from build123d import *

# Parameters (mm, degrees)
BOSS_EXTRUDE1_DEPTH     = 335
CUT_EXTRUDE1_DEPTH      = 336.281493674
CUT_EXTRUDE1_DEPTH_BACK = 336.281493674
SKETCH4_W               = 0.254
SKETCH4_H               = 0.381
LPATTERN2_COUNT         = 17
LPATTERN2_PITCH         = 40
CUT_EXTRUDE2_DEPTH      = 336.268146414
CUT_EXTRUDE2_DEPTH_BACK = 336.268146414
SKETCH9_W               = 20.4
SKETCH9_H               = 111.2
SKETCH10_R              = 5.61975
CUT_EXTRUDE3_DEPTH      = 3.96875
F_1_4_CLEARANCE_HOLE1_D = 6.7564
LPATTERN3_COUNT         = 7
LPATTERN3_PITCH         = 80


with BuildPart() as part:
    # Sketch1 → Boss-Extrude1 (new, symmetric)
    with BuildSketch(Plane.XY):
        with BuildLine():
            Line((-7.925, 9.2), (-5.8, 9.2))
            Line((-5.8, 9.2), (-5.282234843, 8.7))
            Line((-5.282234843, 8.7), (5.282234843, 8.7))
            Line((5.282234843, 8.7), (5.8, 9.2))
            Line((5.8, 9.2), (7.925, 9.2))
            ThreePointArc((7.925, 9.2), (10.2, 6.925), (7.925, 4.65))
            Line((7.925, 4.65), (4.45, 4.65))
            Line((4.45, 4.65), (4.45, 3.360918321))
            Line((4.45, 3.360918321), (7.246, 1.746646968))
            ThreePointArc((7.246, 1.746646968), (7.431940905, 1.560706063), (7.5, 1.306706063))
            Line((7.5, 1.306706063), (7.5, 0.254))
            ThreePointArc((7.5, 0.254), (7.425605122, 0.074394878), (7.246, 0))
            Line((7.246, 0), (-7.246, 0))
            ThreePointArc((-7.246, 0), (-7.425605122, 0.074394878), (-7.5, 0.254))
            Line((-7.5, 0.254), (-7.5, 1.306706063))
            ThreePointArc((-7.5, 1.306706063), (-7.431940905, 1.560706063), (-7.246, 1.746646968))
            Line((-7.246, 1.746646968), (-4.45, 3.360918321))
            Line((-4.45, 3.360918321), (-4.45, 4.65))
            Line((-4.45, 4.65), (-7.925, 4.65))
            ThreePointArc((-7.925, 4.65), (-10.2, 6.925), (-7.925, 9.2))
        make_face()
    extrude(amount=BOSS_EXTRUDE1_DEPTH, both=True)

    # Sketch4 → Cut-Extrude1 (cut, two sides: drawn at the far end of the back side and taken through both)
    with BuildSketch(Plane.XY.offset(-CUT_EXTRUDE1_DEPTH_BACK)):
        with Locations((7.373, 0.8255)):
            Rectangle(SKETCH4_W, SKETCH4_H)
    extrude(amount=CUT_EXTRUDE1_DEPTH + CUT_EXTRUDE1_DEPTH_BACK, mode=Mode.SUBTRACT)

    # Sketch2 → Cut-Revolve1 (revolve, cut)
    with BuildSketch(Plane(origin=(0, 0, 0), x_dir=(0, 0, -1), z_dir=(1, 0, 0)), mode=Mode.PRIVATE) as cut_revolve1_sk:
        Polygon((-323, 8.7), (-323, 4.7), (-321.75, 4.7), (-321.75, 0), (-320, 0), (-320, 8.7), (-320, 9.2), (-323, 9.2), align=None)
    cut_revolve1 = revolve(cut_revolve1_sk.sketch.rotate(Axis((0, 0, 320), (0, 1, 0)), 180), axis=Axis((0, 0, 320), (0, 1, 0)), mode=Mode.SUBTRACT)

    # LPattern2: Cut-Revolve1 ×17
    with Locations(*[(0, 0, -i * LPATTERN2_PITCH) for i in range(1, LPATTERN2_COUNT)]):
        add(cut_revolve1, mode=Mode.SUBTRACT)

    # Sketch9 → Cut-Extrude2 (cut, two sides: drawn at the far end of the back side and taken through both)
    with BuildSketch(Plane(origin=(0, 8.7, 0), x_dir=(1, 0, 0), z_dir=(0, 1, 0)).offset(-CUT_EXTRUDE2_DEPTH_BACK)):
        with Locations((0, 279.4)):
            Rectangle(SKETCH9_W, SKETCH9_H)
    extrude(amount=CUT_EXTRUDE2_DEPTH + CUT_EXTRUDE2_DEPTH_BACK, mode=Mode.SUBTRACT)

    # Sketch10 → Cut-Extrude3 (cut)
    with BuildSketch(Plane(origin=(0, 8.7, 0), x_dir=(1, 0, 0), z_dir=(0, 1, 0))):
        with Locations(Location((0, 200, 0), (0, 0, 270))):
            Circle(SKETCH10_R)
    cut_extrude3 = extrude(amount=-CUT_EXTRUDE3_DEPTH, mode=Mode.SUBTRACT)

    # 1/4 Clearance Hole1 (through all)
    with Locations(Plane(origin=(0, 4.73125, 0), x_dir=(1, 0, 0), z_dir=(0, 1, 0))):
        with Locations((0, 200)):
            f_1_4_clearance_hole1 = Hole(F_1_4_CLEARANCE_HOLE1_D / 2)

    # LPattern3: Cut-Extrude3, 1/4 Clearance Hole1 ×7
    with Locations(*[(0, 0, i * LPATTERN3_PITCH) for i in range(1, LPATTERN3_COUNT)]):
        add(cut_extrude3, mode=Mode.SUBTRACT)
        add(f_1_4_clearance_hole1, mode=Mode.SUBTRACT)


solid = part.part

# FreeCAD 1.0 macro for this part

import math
import FreeCAD as App
import Part
import Sketcher
from FreeCAD import Vector
Q = App.Units.Quantity

doc = App.newDocument("Part")
body = doc.addObject("PartDesign::Body", "Body")

sketch1 = doc.addObject("Sketcher::SketchObject", "Sketch")
body.addObject(sketch1)
sketch1.AttachmentSupport = (doc.XY_Plane, [""])
sketch1.MapMode = "FlatFace"
sketch1.addGeometry(Part.LineSegment(Vector(-5.8, 9.2, 0), Vector(-7.92, 9.2, 0)), False)
sketch1.addGeometry(Part.ArcOfCircle(Part.Circle(Vector(-7.92, 6.92, 0), Vector(0, 0, 1), 2.27), math.radians(90), math.radians(270)), False)
sketch1.addGeometry(Part.LineSegment(Vector(-7.92, 4.65, 0), Vector(-4.45, 4.65, 0)), False)
sketch1.addGeometry(Part.LineSegment(Vector(-4.45, 4.65, 0), Vector(-4.45, 3.36, 0)), False)
sketch1.addGeometry(Part.LineSegment(Vector(-4.45, 3.36, 0), Vector(-7.25, 1.75, 0)), False)
sketch1.addGeometry(Part.ArcOfCircle(Part.Circle(Vector(-6.99, 1.31, 0), Vector(0, 0, 1), 0.51), math.radians(120), math.radians(180)), False)
sketch1.addGeometry(Part.LineSegment(Vector(-7.5, 1.31, 0), Vector(-7.5, 0.25, 0)), False)
sketch1.addGeometry(Part.ArcOfCircle(Part.Circle(Vector(-7.25, 0.25, 0), Vector(0, 0, 1), 0.25), math.radians(-180), math.radians(-90)), False)
sketch1.addGeometry(Part.LineSegment(Vector(-7.25, 0, 0), Vector(7.25, 0, 0)), False)
sketch1.addGeometry(Part.ArcOfCircle(Part.Circle(Vector(7.25, 0.25, 0), Vector(0, 0, 1), 0.25), math.radians(-90), math.radians(0)), False)
sketch1.addGeometry(Part.LineSegment(Vector(7.5, 0.25, 0), Vector(7.5, 1.31, 0)), False)
sketch1.addGeometry(Part.ArcOfCircle(Part.Circle(Vector(6.99, 1.31, 0), Vector(0, 0, 1), 0.51), math.radians(0), math.radians(60)), False)
sketch1.addGeometry(Part.LineSegment(Vector(7.25, 1.75, 0), Vector(4.45, 3.36, 0)), False)
sketch1.addGeometry(Part.LineSegment(Vector(4.45, 3.36, 0), Vector(4.45, 4.65, 0)), False)
sketch1.addGeometry(Part.LineSegment(Vector(4.45, 4.65, 0), Vector(7.92, 4.65, 0)), False)
sketch1.addGeometry(Part.ArcOfCircle(Part.Circle(Vector(7.92, 6.92, 0), Vector(0, 0, 1), 2.27), math.radians(-90), math.radians(90)), False)
sketch1.addGeometry(Part.LineSegment(Vector(7.92, 9.2, 0), Vector(5.8, 9.2, 0)), False)
sketch1.addGeometry(Part.LineSegment(Vector(5.8, 9.2, 0), Vector(5.28, 8.7, 0)), False)
sketch1.addGeometry(Part.LineSegment(Vector(5.28, 8.7, 0), Vector(-5.28, 8.7, 0)), False)
sketch1.addGeometry(Part.LineSegment(Vector(-5.28, 8.7, 0), Vector(-5.8, 9.2, 0)), False)
sketch1.addConstraint(Sketcher.Constraint("Tangent", 0, 2, 1, 1))
sketch1.addConstraint(Sketcher.Constraint("Tangent", 1, 2, 2, 1))
sketch1.addConstraint(Sketcher.Constraint("Coincident", 2, 2, 3, 1))
sketch1.addConstraint(Sketcher.Constraint("Coincident", 3, 2, 4, 1))
sketch1.addConstraint(Sketcher.Constraint("Tangent", 4, 2, 5, 1))
sketch1.addConstraint(Sketcher.Constraint("Tangent", 5, 2, 6, 1))
sketch1.addConstraint(Sketcher.Constraint("Tangent", 6, 2, 7, 1))
sketch1.addConstraint(Sketcher.Constraint("Tangent", 7, 2, 8, 1))
sketch1.addConstraint(Sketcher.Constraint("Tangent", 8, 2, 9, 1))
sketch1.addConstraint(Sketcher.Constraint("Tangent", 9, 2, 10, 1))
sketch1.addConstraint(Sketcher.Constraint("Tangent", 10, 2, 11, 1))
sketch1.addConstraint(Sketcher.Constraint("Tangent", 11, 2, 12, 1))
sketch1.addConstraint(Sketcher.Constraint("Coincident", 12, 2, 13, 1))
sketch1.addConstraint(Sketcher.Constraint("Coincident", 13, 2, 14, 1))
sketch1.addConstraint(Sketcher.Constraint("Tangent", 14, 2, 15, 1))
sketch1.addConstraint(Sketcher.Constraint("Tangent", 15, 2, 16, 1))
sketch1.addConstraint(Sketcher.Constraint("Coincident", 16, 2, 17, 1))
sketch1.addConstraint(Sketcher.Constraint("Coincident", 17, 2, 18, 1))
sketch1.addConstraint(Sketcher.Constraint("Coincident", 18, 2, 19, 1))
sketch1.addConstraint(Sketcher.Constraint("Coincident", 19, 2, 0, 1))
sketch1.addConstraint(Sketcher.Constraint("Horizontal", 0))
sketch1.addConstraint(Sketcher.Constraint("Horizontal", 2))
sketch1.addConstraint(Sketcher.Constraint("Vertical", 3))
sketch1.addConstraint(Sketcher.Constraint("Vertical", 6))
sketch1.addConstraint(Sketcher.Constraint("Horizontal", 8))
sketch1.addConstraint(Sketcher.Constraint("Vertical", 10))
sketch1.addConstraint(Sketcher.Constraint("Vertical", 13))
sketch1.addConstraint(Sketcher.Constraint("Horizontal", 14))
sketch1.addConstraint(Sketcher.Constraint("Horizontal", 16))
sketch1.addConstraint(Sketcher.Constraint("Horizontal", 18))
sketch1.addConstraint(Sketcher.Constraint("Equal", 7, 9))
sketch1.addConstraint(Sketcher.Constraint("Equal", 5, 11))
sketch1.addConstraint(Sketcher.Constraint("Equal", 1, 15))
sketch1.addConstraint(Sketcher.Constraint("Symmetric", 7, 2, 8, 2, -1, 1))
sketch1.addConstraint(Sketcher.Constraint("Symmetric", 1, 3, 15, 3, -2))
sketch1.addConstraint(Sketcher.Constraint("Symmetric", 4, 2, 11, 2, -2))
sketch1.addConstraint(Sketcher.Constraint("Horizontal", 3, 2, 12, 2))
sketch1.addConstraint(Sketcher.Constraint("Vertical", 7, 3, 4, 2))
sketch1.addConstraint(Sketcher.Constraint("Equal", 0, 16))
sketch1.addConstraint(Sketcher.Constraint("Equal", 17, 19))
sketch1.addConstraint(Sketcher.Constraint("Angle", 4, Q("-150 deg")))
sketch1.addConstraint(Sketcher.Constraint("Angle", 17, Q("-136 deg")))
sketch1.addConstraint(Sketcher.Constraint("Radius", 1, Q("2.275 mm")))
sketch1.addConstraint(Sketcher.Constraint("Radius", 5, Q("0.508 mm")))
sketch1.addConstraint(Sketcher.Constraint("DistanceY", -1, 1, 0, 2, Q("9.2 mm")))
sketch1.addConstraint(Sketcher.Constraint("DistanceX", 5, 2, -1, 1, Q("7.5 mm")))
sketch1.addConstraint(Sketcher.Constraint("DistanceX", -1, 1, 16, 2, Q("5.8 mm")))
sketch1.addConstraint(Sketcher.Constraint("DistanceY", -1, 1, 17, 2, Q("8.7 mm")))
sketch1.addConstraint(Sketcher.Constraint("DistanceX", 0, 2, 0, 1, Q("2.125 mm")))
sketch1.addConstraint(Sketcher.Constraint("DistanceX", 2, 1, 2, 2, Q("3.475 mm")))
sketch1.addConstraint(Sketcher.Constraint("DistanceY", 3, 2, 3, 1, Q("1.289082 mm")))
pad1 = doc.addObject("PartDesign::Pad", "Pad")
body.addObject(pad1)
pad1.Profile = sketch1
pad1.Length = 670
pad1.Midplane = True

sketch2 = doc.addObject("Sketcher::SketchObject", "Sketch001")
body.addObject(sketch2)
sketch2.AttachmentSupport = (doc.XY_Plane, [""])
sketch2.MapMode = "FlatFace"
sketch2.addGeometry(Part.LineSegment(Vector(7.25, 1.02, 0), Vector(7.25, 0.64, 0)), False)
sketch2.addGeometry(Part.LineSegment(Vector(7.25, 0.64, 0), Vector(7.5, 0.64, 0)), False)
sketch2.addGeometry(Part.LineSegment(Vector(7.5, 0.64, 0), Vector(7.5, 1.02, 0)), False)
sketch2.addGeometry(Part.LineSegment(Vector(7.5, 1.02, 0), Vector(7.25, 1.02, 0)), False)
sketch2.addConstraint(Sketcher.Constraint("Coincident", 0, 2, 1, 1))
sketch2.addConstraint(Sketcher.Constraint("Coincident", 1, 2, 2, 1))
sketch2.addConstraint(Sketcher.Constraint("Coincident", 2, 2, 3, 1))
sketch2.addConstraint(Sketcher.Constraint("Coincident", 3, 2, 0, 1))
sketch2.addConstraint(Sketcher.Constraint("Vertical", 0))
sketch2.addConstraint(Sketcher.Constraint("Horizontal", 1))
sketch2.addConstraint(Sketcher.Constraint("Vertical", 2))
sketch2.addConstraint(Sketcher.Constraint("Horizontal", 3))
sketch2.addConstraint(Sketcher.Constraint("DistanceX", -1, 1, 1, 2, Q("7.5 mm")))
sketch2.addConstraint(Sketcher.Constraint("DistanceX", 1, 1, 1, 2, Q("0.254 mm")))
sketch2.addConstraint(Sketcher.Constraint("DistanceY", 0, 2, 0, 1, Q("0.381 mm")))
sketch2.addConstraint(Sketcher.Constraint("DistanceY", -1, 1, 0, 2, Q("0.635 mm")))
pocket1 = doc.addObject("PartDesign::Pocket", "Pocket")
body.addObject(pocket1)
pocket1.Profile = sketch2
pocket1.Type = "ThroughAll"
pocket1.Midplane = True

sketch3 = doc.addObject("Sketcher::SketchObject", "Sketch002")
body.addObject(sketch3)
sketch3.AttachmentSupport = (doc.YZ_Plane, [""])
sketch3.MapMode = "FlatFace"
sketch3.addGeometry(Part.LineSegment(Vector(4.7, 323, 0), Vector(4.7, 321.8, 0)), False)
sketch3.addGeometry(Part.LineSegment(Vector(4.7, 321.8, 0), Vector(0, 321.8, 0)), False)
sketch3.addGeometry(Part.LineSegment(Vector(0, 321.8, 0), Vector(0, 320, 0)), False)
sketch3.addGeometry(Part.LineSegment(Vector(0, 320, 0), Vector(9.2, 320, 0)), False)
sketch3.addGeometry(Part.LineSegment(Vector(9.2, 320, 0), Vector(9.2, 323, 0)), False)
sketch3.addGeometry(Part.LineSegment(Vector(9.2, 323, 0), Vector(4.7, 323, 0)), False)
sketch3.addGeometry(Part.LineSegment(Vector(0, 320, 0), Vector(9.2, 320, 0)), True)
sketch3.addConstraint(Sketcher.Constraint("Coincident", 0, 2, 1, 1))
sketch3.addConstraint(Sketcher.Constraint("Coincident", 1, 2, 2, 1))
sketch3.addConstraint(Sketcher.Constraint("Coincident", 2, 2, 3, 1))
sketch3.addConstraint(Sketcher.Constraint("Coincident", 3, 2, 4, 1))
sketch3.addConstraint(Sketcher.Constraint("Coincident", 4, 2, 5, 1))
sketch3.addConstraint(Sketcher.Constraint("Coincident", 5, 2, 0, 1))
sketch3.addConstraint(Sketcher.Constraint("Vertical", 0))
sketch3.addConstraint(Sketcher.Constraint("Horizontal", 1))
sketch3.addConstraint(Sketcher.Constraint("Vertical", 2))
sketch3.addConstraint(Sketcher.Constraint("Horizontal", 3))
sketch3.addConstraint(Sketcher.Constraint("Vertical", 4))
sketch3.addConstraint(Sketcher.Constraint("Horizontal", 5))
sketch3.addConstraint(Sketcher.Constraint("Horizontal", 6))
sketch3.addConstraint(Sketcher.Constraint("Coincident", 6, 1, 2, 2))
sketch3.addConstraint(Sketcher.Constraint("PointOnObject", 1, 2, -2))
sketch3.addConstraint(Sketcher.Constraint("Vertical", 4, 2, 6, 2))
sketch3.addConstraint(Sketcher.Constraint("DistanceY", 4, 1, 4, 2, Q("3 mm")))
sketch3.addConstraint(Sketcher.Constraint("DistanceX", 1, 2, 1, 1, Q("4.7 mm")))
sketch3.addConstraint(Sketcher.Constraint("DistanceX", 3, 1, 3, 2, Q("9.2 mm")))
sketch3.addConstraint(Sketcher.Constraint("DistanceY", -1, 1, 2, 2, Q("320 mm")))
sketch3.addConstraint(Sketcher.Constraint("DistanceY", 0, 2, 0, 1, Q("1.25 mm")))
groove = doc.addObject("PartDesign::Groove", "Groove")
body.addObject(groove)
groove.Profile = sketch3
groove.ReferenceAxis = (sketch3, ["Axis0"])
groove.Angle = 360
doc.recompute()

linearpattern = doc.addObject("PartDesign::LinearPattern", "LinearPattern")
body.addObject(linearpattern)
linearpattern.Originals = [groove]
linearpattern.Direction = (doc.Z_Axis, [""])
linearpattern.Mode = "offset"
linearpattern.Offset = 40
linearpattern.Occurrences = 17
linearpattern.Reversed = True
body.Tip = linearpattern

sketch4 = doc.addObject("Sketcher::SketchObject", "Sketch003")
body.addObject(sketch4)
sketch4.AttachmentSupport = (doc.XZ_Plane, [""])
sketch4.MapMode = "FlatFace"
sketch4.AttachmentOffset = App.Placement(Vector(0, 0, -8.7), App.Rotation())
sketch4.addGeometry(Part.LineSegment(Vector(-10, -335, 0), Vector(-10, -224, 0)), False)
sketch4.addGeometry(Part.LineSegment(Vector(-10, -224, 0), Vector(10, -224, 0)), False)
sketch4.addGeometry(Part.LineSegment(Vector(10, -224, 0), Vector(10, -335, 0)), False)
sketch4.addGeometry(Part.LineSegment(Vector(10, -335, 0), Vector(-10, -335, 0)), False)
sketch4.addConstraint(Sketcher.Constraint("Coincident", 0, 2, 1, 1))
sketch4.addConstraint(Sketcher.Constraint("Coincident", 1, 2, 2, 1))
sketch4.addConstraint(Sketcher.Constraint("Coincident", 2, 2, 3, 1))
sketch4.addConstraint(Sketcher.Constraint("Coincident", 3, 2, 0, 1))
sketch4.addConstraint(Sketcher.Constraint("Vertical", 0))
sketch4.addConstraint(Sketcher.Constraint("Horizontal", 1))
sketch4.addConstraint(Sketcher.Constraint("Vertical", 2))
sketch4.addConstraint(Sketcher.Constraint("Horizontal", 3))
sketch4.addConstraint(Sketcher.Constraint("DistanceX", 1, 1, 1, 2, Q("20.4 mm")))
sketch4.addConstraint(Sketcher.Constraint("DistanceY", 0, 1, 0, 2, Q("111.2 mm")))
sketch4.addConstraint(Sketcher.Constraint("DistanceY", 2, 2, -1, 1, Q("335 mm")))
sketch4.addConstraint(Sketcher.Constraint("DistanceX", 0, 2, -1, 1, Q("10.2 mm")))
pocket2 = doc.addObject("PartDesign::Pocket", "Pocket001")
body.addObject(pocket2)
pocket2.Profile = sketch4
pocket2.Type = "ThroughAll"
pocket2.Midplane = True

sketch5 = doc.addObject("Sketcher::SketchObject", "Sketch004")
body.addObject(sketch5)
sketch5.AttachmentSupport = (doc.XZ_Plane, [""])
sketch5.MapMode = "FlatFace"
sketch5.AttachmentOffset = App.Placement(Vector(0, 0, -8.7), App.Rotation())
sketch5.addGeometry(Part.Circle(Vector(0, -200, 0), Vector(0, 0, 1), 6), False)
sketch5.addConstraint(Sketcher.Constraint("PointOnObject", 0, 3, -2))
sketch5.addConstraint(Sketcher.Constraint("DistanceY", 0, 3, -1, 1, Q("200 mm")))
sketch5.addConstraint(Sketcher.Constraint("Diameter", 0, Q("11.2395 mm")))
pocket3 = doc.addObject("PartDesign::Pocket", "Pocket002")
body.addObject(pocket3)
pocket3.Profile = sketch5
pocket3.Length = 3.96875
pocket3.Reversed = True

sketch6 = doc.addObject("Sketcher::SketchObject", "Sketch005")
body.addObject(sketch6)
sketch6.AttachmentSupport = (doc.XZ_Plane, [""])
sketch6.MapMode = "FlatFace"
sketch6.AttachmentOffset = App.Placement(Vector(0, 0, -4.73125), App.Rotation())
sketch6.addGeometry(Part.Circle(Vector(0, -200, 0), Vector(0, 0, 1), 3.4), False)
sketch6.addConstraint(Sketcher.Constraint("PointOnObject", 0, 3, -2))
sketch6.addConstraint(Sketcher.Constraint("DistanceY", 0, 3, -1, 1, Q("200 mm")))
sketch6.addConstraint(Sketcher.Constraint("Diameter", 0, Q("6.7564 mm")))
doc.recompute()
hole = doc.addObject("PartDesign::Hole", "Hole")
body.addObject(hole)
hole.Profile = sketch6
hole.ThreadType = "None"
hole.Diameter = 6.7564
hole.DepthType = "ThroughAll"
hole.Reversed = True
doc.recompute()

linearpattern2 = doc.addObject("PartDesign::LinearPattern", "LinearPattern001")
body.addObject(linearpattern2)
linearpattern2.Originals = [pocket3, hole]
linearpattern2.Direction = (doc.Z_Axis, [""])
linearpattern2.Mode = "offset"
linearpattern2.Offset = 80
linearpattern2.Occurrences = 7
body.Tip = linearpattern2

doc.recompute()
